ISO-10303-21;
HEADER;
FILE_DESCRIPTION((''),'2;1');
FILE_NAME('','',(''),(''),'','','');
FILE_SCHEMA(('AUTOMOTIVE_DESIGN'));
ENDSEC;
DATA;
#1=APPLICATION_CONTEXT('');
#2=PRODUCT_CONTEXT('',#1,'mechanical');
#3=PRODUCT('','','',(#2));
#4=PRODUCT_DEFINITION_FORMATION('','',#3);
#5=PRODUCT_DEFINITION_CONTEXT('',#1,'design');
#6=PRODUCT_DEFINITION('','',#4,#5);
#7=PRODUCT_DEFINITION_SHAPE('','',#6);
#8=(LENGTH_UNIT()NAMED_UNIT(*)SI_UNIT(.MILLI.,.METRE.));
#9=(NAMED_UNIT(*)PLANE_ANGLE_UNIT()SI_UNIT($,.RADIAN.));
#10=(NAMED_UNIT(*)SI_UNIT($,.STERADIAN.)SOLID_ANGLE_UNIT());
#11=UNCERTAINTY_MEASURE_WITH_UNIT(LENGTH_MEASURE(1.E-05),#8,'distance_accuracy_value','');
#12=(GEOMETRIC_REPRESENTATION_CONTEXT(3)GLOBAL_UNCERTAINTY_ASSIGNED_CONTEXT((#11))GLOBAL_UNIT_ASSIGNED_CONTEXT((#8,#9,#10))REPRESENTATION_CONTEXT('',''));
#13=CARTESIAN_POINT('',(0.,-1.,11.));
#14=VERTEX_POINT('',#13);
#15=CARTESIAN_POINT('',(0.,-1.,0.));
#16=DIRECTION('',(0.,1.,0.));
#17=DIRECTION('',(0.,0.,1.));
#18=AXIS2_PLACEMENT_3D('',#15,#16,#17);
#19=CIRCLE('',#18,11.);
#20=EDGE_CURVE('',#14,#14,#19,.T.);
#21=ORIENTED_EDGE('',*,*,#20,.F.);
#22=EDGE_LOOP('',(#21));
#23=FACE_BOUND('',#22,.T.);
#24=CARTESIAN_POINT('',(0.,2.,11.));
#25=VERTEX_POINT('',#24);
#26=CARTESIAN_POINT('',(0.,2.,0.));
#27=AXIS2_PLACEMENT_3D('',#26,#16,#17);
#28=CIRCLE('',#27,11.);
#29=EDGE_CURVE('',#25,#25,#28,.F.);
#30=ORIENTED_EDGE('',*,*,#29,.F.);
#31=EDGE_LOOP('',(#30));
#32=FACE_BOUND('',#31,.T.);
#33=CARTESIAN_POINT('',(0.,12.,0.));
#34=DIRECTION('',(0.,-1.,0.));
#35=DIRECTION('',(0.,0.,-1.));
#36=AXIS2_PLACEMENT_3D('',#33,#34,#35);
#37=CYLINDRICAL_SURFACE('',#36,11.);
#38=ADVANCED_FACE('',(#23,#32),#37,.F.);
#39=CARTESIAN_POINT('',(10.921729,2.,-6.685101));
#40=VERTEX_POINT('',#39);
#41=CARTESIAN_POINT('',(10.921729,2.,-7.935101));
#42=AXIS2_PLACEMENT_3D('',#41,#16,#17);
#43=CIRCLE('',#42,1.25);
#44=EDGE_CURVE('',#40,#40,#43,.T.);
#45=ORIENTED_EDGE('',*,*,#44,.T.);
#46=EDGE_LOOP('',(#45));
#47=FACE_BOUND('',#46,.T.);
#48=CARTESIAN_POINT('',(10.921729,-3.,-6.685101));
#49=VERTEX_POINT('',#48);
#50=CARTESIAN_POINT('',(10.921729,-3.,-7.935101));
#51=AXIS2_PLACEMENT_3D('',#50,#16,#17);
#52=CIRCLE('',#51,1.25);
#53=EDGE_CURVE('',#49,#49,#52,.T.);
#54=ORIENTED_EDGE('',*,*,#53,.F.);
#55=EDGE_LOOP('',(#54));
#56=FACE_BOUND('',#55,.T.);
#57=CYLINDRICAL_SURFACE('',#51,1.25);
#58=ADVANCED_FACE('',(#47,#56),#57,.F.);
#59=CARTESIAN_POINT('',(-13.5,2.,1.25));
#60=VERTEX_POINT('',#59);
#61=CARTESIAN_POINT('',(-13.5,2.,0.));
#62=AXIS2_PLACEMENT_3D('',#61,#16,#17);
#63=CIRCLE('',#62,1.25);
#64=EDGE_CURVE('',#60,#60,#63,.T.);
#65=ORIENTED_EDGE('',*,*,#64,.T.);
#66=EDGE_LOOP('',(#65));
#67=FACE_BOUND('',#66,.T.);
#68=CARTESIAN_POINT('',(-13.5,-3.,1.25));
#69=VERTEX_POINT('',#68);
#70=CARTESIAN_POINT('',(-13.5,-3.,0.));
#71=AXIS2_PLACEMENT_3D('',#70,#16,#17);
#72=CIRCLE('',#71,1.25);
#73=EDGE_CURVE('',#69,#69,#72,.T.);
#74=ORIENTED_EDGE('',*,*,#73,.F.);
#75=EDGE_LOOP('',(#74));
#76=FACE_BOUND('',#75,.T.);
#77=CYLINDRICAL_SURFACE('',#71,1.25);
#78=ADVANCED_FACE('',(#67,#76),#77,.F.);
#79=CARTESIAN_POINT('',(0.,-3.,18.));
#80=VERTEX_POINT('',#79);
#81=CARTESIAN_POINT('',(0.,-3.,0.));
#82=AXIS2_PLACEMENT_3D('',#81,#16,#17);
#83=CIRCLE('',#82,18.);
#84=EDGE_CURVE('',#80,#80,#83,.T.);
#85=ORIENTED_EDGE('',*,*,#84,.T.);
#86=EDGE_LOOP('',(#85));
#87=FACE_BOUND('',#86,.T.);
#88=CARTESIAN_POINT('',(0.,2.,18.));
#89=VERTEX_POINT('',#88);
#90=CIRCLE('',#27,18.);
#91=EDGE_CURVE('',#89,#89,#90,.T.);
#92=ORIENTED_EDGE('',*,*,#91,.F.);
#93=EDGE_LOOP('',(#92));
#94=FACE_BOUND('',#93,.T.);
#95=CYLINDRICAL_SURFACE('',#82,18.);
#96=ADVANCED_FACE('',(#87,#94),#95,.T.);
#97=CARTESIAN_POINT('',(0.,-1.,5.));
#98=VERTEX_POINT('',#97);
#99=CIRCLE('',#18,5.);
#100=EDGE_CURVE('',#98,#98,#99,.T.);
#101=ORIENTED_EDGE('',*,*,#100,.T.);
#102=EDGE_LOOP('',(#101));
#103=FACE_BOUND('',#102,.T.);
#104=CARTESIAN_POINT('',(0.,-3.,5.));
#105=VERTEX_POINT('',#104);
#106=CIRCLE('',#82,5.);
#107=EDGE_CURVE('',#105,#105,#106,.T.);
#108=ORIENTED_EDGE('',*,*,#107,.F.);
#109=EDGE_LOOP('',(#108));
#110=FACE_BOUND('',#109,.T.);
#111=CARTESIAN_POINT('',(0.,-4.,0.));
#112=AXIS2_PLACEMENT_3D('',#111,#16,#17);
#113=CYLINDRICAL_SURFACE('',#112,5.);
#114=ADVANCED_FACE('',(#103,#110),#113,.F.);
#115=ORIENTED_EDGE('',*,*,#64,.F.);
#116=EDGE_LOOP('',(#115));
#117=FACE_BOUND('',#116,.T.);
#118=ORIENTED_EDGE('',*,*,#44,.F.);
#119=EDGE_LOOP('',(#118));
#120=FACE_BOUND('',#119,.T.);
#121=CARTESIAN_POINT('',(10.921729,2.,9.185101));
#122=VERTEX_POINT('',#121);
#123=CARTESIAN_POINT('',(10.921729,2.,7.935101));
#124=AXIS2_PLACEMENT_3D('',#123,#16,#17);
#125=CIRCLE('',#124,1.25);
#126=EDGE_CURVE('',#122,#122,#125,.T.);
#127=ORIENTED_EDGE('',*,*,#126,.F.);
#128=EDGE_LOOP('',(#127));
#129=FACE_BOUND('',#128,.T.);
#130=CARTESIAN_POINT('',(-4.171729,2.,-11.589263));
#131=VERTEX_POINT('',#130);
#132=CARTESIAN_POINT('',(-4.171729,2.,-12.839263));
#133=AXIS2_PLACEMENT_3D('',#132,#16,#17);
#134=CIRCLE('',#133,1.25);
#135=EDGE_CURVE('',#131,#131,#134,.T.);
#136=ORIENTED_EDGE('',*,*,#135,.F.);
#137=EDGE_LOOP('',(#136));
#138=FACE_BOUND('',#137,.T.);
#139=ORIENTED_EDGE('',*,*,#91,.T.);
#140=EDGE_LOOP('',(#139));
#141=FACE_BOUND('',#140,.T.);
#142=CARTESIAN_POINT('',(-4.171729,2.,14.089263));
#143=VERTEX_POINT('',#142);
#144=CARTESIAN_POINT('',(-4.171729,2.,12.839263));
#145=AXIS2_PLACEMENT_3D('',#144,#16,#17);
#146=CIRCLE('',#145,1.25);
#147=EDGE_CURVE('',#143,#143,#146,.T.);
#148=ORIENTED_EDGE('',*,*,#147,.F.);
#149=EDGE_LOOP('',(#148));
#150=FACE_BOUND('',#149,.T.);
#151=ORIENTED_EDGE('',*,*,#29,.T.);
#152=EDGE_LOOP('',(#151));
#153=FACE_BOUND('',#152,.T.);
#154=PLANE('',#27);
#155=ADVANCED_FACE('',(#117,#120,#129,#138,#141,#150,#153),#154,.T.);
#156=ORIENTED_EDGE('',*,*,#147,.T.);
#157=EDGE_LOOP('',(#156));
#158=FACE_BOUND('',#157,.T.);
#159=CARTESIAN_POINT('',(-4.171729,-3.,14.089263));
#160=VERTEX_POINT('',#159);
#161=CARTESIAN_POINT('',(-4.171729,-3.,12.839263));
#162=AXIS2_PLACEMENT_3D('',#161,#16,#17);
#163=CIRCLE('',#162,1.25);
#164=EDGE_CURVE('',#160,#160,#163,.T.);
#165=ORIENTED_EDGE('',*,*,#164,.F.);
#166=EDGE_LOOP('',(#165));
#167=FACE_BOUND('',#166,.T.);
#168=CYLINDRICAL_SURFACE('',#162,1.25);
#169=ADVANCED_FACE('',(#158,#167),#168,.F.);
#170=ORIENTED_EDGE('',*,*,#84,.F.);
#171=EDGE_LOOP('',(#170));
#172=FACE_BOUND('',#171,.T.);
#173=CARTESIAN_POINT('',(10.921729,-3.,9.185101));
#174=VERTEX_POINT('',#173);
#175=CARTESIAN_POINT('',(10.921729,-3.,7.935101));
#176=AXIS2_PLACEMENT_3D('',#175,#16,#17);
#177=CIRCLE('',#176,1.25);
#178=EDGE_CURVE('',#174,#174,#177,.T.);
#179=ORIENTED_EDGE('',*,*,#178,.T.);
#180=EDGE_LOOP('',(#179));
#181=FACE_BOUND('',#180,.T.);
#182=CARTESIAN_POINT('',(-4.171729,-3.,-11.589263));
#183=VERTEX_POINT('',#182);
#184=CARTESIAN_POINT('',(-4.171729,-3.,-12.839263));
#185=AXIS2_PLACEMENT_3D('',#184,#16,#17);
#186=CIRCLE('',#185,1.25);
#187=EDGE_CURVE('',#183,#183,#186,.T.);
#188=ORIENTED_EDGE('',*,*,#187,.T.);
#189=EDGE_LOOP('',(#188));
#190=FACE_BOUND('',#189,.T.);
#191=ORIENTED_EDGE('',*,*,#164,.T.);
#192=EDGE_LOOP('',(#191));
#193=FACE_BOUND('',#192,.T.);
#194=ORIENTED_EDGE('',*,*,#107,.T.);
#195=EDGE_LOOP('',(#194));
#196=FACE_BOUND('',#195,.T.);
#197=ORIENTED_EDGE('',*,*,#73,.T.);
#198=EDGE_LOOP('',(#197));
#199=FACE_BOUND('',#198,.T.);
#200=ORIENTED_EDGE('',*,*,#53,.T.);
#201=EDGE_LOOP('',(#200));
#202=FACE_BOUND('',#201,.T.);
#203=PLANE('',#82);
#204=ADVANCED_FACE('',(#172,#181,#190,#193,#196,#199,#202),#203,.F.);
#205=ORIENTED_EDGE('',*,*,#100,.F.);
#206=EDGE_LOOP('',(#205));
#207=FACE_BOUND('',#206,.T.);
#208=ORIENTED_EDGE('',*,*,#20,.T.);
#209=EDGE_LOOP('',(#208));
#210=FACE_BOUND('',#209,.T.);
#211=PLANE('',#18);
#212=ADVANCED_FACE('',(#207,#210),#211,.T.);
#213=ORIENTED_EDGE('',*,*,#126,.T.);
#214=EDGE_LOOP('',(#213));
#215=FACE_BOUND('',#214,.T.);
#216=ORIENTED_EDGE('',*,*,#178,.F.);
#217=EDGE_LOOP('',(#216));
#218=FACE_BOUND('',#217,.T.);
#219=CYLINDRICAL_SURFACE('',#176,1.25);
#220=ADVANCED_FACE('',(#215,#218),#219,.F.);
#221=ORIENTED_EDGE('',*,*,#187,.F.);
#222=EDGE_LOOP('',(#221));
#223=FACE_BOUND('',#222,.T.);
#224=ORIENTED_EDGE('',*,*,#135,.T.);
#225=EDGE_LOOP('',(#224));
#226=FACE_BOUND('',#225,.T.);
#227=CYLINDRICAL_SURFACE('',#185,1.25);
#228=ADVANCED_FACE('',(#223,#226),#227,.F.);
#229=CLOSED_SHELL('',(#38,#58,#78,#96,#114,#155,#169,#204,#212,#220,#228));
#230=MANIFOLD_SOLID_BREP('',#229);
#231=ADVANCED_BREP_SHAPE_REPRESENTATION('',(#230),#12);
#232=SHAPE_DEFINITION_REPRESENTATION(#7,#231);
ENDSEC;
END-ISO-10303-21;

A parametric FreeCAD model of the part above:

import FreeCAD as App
import Part
import Sketcher
from FreeCAD import Vector

doc = App.newDocument("Part")
body = doc.addObject("PartDesign::Body", "Body")

# Sketch on XZ plane
sketch1 = body.newObject("Sketcher::SketchObject", "Sketch")
sketch1.AttachmentSupport = (doc.getObject("XZ_Plane"), [""])
sketch1.MapMode = "FlatFace"
sketch1.addGeometry([
    Part.Circle(Vector(0, 0, 0), Vector(0, 0, 1), 16),  # 0
    Part.Circle(Vector(-4.2, -12.8, 0), Vector(0, 0, 1), 1.2),  # 1
    Part.Circle(Vector(-13.5, 0, 0), Vector(0, 0, 1), 1.2),  # 2
    Part.Circle(Vector(-4.2, 12.8, 0), Vector(0, 0, 1), 1.2),  # 3
    Part.Circle(Vector(0, 0, 0), Vector(0, 0, 1), 1.8),  # 4
    Part.Circle(Vector(10.9, -7.9, 0), Vector(0, 0, 1), 1.2),  # 5
    Part.Circle(Vector(10.9, 7.9, 0), Vector(0, 0, 1), 1.2),  # 6
], False)
sketch1.addConstraint([
    Sketcher.Constraint("Coincident", 0, 3, -1, 1),
    Sketcher.Constraint("Coincident", 4, 3, -1, 1),
    Sketcher.Constraint("Equal", 1, 2),
    Sketcher.Constraint("Equal", 2, 3),
    Sketcher.Constraint("Equal", 3, 5),
    Sketcher.Constraint("Equal", 5, 6),
    Sketcher.Constraint("Symmetric", 1, 3, 3, 3, -1),
    Sketcher.Constraint("Symmetric", 5, 3, 6, 3, -1),
    Sketcher.Constraint("PointOnObject", 2, 3, -1),
    Sketcher.Constraint("Diameter", 0, 32.0),
    Sketcher.Constraint("Diameter", 1, 2.5),
    Sketcher.Constraint("Diameter", 4, 3.5),
    Sketcher.Constraint("DistanceX", 2, 3, -1, 1, 13.5),
    Sketcher.Constraint("DistanceY", 5, 3, -1, 1, 7.935101),
    Sketcher.Constraint("DistanceX", 1, 3, -1, 1, 4.171729),
    Sketcher.Constraint("DistanceX", -1, 1, 5, 3, 10.921729),
    Sketcher.Constraint("DistanceY", 1, 3, -1, 1, 12.839263),
])
pad1 = body.newObject("PartDesign::Pad", "Pad")
pad1.Profile = sketch1
pad1.Type = "TwoLengths"
pad1.Length = 2
pad1.Length2 = 3
pad1.Reversed = True

# Sketch on XZ plane
sketch2 = body.newObject("Sketcher::SketchObject", "Sketch001")
sketch2.AttachmentSupport = (doc.getObject("XZ_Plane"), [""])
sketch2.MapMode = "FlatFace"
sketch2.AttachmentOffset = App.Placement(Vector(0, 0, -2), App.Rotation())
sketch2.addGeometry([
    Part.Circle(Vector(0, 0, 0), Vector(0, 0, 1), 5),
    Part.Circle(Vector(0, 0, 0), Vector(0, 0, 1), 3),
], False)
sketch2.addConstraint([
    Sketcher.Constraint("Coincident", 0, 3, -1, 1),
    Sketcher.Constraint("Coincident", 1, 3, -1, 1),
    Sketcher.Constraint("Diameter", 0, 9.9),
    Sketcher.Constraint("Diameter", 1, 5.9),
])
pad2 = body.newObject("PartDesign::Pad", "Pad001")
pad2.Profile = sketch2
pad2.Length = 3
pad2.Reversed = True

# Sketch on XZ plane
sketch3 = body.newObject("Sketcher::SketchObject", "Sketch002")
sketch3.AttachmentSupport = (doc.getObject("XZ_Plane"), [""])
sketch3.MapMode = "FlatFace"
sketch3.AttachmentOffset = App.Placement(Vector(0, 0, 3), App.Rotation())
sketch3.addGeometry(Part.Circle(Vector(0, 0, 0), Vector(0, 0, 1), 3.5), False)
sketch3.addConstraint([
    Sketcher.Constraint("Coincident", 0, 3, -1, 1),
    Sketcher.Constraint("Diameter", 0, 7.0),
])
pocket1 = body.newObject("PartDesign::Pocket", "Pocket")
pocket1.Profile = sketch3
pocket1.Length = 4

# Sketch on XZ plane
sketch4 = body.newObject("Sketcher::SketchObject", "Sketch003")
sketch4.AttachmentSupport = (doc.getObject("XZ_Plane"), [""])
sketch4.MapMode = "FlatFace"
sketch4.AttachmentOffset = App.Placement(Vector(0, 0, -2), App.Rotation())
sketch4.addGeometry([
    Part.Circle(Vector(0, 0, 0), Vector(0, 0, 1), 18),
    Part.Circle(Vector(0, 0, 0), Vector(0, 0, 1), 16),
], False)
sketch4.addConstraint([
    Sketcher.Constraint("Coincident", 0, 3, -1, 1),
    Sketcher.Constraint("Coincident", 1, 3, -1, 1),
    Sketcher.Constraint("Diameter", 0, 36.0),
    Sketcher.Constraint("Diameter", 1, 32.0),
])
pad3 = body.newObject("PartDesign::Pad", "Pad002")
pad3.Profile = sketch4
pad3.Length = 5

# Sketch on XZ plane
sketch5 = body.newObject("Sketcher::SketchObject", "Sketch004")
sketch5.AttachmentSupport = (doc.getObject("XZ_Plane"), [""])
sketch5.MapMode = "FlatFace"
sketch5.AttachmentOffset = App.Placement(Vector(0, 0, -2), App.Rotation())
sketch5.addGeometry(Part.Circle(Vector(0, 0, 0), Vector(0, 0, 1), 11), False)
sketch5.addConstraint([
    Sketcher.Constraint("Coincident", 0, 3, -1, 1),
    Sketcher.Constraint("Diameter", 0, 22.0),
])
pocket2 = body.newObject("PartDesign::Pocket", "Pocket001")
pocket2.Profile = sketch5
pocket2.Type = "TwoLengths"
pocket2.Length = 10
pocket2.Length2 = 3

# Sketch on XZ plane
sketch6 = body.newObject("Sketcher::SketchObject", "Sketch005")
sketch6.AttachmentSupport = (doc.getObject("XZ_Plane"), [""])
sketch6.MapMode = "FlatFace"
sketch6.AttachmentOffset = App.Placement(Vector(0, 0, 1), App.Rotation())
sketch6.addGeometry(Part.Circle(Vector(0, 0, 0), Vector(0, 0, 1), 5), False)
sketch6.addConstraint([
    Sketcher.Constraint("Coincident", 0, 3, -1, 1),
    Sketcher.Constraint("Diameter", 0, 10.0),
])
pocket3 = body.newObject("PartDesign::Pocket", "Pocket002")
pocket3.Profile = sketch6
pocket3.Length = 3
pocket3.Reversed = True

doc.recompute()
